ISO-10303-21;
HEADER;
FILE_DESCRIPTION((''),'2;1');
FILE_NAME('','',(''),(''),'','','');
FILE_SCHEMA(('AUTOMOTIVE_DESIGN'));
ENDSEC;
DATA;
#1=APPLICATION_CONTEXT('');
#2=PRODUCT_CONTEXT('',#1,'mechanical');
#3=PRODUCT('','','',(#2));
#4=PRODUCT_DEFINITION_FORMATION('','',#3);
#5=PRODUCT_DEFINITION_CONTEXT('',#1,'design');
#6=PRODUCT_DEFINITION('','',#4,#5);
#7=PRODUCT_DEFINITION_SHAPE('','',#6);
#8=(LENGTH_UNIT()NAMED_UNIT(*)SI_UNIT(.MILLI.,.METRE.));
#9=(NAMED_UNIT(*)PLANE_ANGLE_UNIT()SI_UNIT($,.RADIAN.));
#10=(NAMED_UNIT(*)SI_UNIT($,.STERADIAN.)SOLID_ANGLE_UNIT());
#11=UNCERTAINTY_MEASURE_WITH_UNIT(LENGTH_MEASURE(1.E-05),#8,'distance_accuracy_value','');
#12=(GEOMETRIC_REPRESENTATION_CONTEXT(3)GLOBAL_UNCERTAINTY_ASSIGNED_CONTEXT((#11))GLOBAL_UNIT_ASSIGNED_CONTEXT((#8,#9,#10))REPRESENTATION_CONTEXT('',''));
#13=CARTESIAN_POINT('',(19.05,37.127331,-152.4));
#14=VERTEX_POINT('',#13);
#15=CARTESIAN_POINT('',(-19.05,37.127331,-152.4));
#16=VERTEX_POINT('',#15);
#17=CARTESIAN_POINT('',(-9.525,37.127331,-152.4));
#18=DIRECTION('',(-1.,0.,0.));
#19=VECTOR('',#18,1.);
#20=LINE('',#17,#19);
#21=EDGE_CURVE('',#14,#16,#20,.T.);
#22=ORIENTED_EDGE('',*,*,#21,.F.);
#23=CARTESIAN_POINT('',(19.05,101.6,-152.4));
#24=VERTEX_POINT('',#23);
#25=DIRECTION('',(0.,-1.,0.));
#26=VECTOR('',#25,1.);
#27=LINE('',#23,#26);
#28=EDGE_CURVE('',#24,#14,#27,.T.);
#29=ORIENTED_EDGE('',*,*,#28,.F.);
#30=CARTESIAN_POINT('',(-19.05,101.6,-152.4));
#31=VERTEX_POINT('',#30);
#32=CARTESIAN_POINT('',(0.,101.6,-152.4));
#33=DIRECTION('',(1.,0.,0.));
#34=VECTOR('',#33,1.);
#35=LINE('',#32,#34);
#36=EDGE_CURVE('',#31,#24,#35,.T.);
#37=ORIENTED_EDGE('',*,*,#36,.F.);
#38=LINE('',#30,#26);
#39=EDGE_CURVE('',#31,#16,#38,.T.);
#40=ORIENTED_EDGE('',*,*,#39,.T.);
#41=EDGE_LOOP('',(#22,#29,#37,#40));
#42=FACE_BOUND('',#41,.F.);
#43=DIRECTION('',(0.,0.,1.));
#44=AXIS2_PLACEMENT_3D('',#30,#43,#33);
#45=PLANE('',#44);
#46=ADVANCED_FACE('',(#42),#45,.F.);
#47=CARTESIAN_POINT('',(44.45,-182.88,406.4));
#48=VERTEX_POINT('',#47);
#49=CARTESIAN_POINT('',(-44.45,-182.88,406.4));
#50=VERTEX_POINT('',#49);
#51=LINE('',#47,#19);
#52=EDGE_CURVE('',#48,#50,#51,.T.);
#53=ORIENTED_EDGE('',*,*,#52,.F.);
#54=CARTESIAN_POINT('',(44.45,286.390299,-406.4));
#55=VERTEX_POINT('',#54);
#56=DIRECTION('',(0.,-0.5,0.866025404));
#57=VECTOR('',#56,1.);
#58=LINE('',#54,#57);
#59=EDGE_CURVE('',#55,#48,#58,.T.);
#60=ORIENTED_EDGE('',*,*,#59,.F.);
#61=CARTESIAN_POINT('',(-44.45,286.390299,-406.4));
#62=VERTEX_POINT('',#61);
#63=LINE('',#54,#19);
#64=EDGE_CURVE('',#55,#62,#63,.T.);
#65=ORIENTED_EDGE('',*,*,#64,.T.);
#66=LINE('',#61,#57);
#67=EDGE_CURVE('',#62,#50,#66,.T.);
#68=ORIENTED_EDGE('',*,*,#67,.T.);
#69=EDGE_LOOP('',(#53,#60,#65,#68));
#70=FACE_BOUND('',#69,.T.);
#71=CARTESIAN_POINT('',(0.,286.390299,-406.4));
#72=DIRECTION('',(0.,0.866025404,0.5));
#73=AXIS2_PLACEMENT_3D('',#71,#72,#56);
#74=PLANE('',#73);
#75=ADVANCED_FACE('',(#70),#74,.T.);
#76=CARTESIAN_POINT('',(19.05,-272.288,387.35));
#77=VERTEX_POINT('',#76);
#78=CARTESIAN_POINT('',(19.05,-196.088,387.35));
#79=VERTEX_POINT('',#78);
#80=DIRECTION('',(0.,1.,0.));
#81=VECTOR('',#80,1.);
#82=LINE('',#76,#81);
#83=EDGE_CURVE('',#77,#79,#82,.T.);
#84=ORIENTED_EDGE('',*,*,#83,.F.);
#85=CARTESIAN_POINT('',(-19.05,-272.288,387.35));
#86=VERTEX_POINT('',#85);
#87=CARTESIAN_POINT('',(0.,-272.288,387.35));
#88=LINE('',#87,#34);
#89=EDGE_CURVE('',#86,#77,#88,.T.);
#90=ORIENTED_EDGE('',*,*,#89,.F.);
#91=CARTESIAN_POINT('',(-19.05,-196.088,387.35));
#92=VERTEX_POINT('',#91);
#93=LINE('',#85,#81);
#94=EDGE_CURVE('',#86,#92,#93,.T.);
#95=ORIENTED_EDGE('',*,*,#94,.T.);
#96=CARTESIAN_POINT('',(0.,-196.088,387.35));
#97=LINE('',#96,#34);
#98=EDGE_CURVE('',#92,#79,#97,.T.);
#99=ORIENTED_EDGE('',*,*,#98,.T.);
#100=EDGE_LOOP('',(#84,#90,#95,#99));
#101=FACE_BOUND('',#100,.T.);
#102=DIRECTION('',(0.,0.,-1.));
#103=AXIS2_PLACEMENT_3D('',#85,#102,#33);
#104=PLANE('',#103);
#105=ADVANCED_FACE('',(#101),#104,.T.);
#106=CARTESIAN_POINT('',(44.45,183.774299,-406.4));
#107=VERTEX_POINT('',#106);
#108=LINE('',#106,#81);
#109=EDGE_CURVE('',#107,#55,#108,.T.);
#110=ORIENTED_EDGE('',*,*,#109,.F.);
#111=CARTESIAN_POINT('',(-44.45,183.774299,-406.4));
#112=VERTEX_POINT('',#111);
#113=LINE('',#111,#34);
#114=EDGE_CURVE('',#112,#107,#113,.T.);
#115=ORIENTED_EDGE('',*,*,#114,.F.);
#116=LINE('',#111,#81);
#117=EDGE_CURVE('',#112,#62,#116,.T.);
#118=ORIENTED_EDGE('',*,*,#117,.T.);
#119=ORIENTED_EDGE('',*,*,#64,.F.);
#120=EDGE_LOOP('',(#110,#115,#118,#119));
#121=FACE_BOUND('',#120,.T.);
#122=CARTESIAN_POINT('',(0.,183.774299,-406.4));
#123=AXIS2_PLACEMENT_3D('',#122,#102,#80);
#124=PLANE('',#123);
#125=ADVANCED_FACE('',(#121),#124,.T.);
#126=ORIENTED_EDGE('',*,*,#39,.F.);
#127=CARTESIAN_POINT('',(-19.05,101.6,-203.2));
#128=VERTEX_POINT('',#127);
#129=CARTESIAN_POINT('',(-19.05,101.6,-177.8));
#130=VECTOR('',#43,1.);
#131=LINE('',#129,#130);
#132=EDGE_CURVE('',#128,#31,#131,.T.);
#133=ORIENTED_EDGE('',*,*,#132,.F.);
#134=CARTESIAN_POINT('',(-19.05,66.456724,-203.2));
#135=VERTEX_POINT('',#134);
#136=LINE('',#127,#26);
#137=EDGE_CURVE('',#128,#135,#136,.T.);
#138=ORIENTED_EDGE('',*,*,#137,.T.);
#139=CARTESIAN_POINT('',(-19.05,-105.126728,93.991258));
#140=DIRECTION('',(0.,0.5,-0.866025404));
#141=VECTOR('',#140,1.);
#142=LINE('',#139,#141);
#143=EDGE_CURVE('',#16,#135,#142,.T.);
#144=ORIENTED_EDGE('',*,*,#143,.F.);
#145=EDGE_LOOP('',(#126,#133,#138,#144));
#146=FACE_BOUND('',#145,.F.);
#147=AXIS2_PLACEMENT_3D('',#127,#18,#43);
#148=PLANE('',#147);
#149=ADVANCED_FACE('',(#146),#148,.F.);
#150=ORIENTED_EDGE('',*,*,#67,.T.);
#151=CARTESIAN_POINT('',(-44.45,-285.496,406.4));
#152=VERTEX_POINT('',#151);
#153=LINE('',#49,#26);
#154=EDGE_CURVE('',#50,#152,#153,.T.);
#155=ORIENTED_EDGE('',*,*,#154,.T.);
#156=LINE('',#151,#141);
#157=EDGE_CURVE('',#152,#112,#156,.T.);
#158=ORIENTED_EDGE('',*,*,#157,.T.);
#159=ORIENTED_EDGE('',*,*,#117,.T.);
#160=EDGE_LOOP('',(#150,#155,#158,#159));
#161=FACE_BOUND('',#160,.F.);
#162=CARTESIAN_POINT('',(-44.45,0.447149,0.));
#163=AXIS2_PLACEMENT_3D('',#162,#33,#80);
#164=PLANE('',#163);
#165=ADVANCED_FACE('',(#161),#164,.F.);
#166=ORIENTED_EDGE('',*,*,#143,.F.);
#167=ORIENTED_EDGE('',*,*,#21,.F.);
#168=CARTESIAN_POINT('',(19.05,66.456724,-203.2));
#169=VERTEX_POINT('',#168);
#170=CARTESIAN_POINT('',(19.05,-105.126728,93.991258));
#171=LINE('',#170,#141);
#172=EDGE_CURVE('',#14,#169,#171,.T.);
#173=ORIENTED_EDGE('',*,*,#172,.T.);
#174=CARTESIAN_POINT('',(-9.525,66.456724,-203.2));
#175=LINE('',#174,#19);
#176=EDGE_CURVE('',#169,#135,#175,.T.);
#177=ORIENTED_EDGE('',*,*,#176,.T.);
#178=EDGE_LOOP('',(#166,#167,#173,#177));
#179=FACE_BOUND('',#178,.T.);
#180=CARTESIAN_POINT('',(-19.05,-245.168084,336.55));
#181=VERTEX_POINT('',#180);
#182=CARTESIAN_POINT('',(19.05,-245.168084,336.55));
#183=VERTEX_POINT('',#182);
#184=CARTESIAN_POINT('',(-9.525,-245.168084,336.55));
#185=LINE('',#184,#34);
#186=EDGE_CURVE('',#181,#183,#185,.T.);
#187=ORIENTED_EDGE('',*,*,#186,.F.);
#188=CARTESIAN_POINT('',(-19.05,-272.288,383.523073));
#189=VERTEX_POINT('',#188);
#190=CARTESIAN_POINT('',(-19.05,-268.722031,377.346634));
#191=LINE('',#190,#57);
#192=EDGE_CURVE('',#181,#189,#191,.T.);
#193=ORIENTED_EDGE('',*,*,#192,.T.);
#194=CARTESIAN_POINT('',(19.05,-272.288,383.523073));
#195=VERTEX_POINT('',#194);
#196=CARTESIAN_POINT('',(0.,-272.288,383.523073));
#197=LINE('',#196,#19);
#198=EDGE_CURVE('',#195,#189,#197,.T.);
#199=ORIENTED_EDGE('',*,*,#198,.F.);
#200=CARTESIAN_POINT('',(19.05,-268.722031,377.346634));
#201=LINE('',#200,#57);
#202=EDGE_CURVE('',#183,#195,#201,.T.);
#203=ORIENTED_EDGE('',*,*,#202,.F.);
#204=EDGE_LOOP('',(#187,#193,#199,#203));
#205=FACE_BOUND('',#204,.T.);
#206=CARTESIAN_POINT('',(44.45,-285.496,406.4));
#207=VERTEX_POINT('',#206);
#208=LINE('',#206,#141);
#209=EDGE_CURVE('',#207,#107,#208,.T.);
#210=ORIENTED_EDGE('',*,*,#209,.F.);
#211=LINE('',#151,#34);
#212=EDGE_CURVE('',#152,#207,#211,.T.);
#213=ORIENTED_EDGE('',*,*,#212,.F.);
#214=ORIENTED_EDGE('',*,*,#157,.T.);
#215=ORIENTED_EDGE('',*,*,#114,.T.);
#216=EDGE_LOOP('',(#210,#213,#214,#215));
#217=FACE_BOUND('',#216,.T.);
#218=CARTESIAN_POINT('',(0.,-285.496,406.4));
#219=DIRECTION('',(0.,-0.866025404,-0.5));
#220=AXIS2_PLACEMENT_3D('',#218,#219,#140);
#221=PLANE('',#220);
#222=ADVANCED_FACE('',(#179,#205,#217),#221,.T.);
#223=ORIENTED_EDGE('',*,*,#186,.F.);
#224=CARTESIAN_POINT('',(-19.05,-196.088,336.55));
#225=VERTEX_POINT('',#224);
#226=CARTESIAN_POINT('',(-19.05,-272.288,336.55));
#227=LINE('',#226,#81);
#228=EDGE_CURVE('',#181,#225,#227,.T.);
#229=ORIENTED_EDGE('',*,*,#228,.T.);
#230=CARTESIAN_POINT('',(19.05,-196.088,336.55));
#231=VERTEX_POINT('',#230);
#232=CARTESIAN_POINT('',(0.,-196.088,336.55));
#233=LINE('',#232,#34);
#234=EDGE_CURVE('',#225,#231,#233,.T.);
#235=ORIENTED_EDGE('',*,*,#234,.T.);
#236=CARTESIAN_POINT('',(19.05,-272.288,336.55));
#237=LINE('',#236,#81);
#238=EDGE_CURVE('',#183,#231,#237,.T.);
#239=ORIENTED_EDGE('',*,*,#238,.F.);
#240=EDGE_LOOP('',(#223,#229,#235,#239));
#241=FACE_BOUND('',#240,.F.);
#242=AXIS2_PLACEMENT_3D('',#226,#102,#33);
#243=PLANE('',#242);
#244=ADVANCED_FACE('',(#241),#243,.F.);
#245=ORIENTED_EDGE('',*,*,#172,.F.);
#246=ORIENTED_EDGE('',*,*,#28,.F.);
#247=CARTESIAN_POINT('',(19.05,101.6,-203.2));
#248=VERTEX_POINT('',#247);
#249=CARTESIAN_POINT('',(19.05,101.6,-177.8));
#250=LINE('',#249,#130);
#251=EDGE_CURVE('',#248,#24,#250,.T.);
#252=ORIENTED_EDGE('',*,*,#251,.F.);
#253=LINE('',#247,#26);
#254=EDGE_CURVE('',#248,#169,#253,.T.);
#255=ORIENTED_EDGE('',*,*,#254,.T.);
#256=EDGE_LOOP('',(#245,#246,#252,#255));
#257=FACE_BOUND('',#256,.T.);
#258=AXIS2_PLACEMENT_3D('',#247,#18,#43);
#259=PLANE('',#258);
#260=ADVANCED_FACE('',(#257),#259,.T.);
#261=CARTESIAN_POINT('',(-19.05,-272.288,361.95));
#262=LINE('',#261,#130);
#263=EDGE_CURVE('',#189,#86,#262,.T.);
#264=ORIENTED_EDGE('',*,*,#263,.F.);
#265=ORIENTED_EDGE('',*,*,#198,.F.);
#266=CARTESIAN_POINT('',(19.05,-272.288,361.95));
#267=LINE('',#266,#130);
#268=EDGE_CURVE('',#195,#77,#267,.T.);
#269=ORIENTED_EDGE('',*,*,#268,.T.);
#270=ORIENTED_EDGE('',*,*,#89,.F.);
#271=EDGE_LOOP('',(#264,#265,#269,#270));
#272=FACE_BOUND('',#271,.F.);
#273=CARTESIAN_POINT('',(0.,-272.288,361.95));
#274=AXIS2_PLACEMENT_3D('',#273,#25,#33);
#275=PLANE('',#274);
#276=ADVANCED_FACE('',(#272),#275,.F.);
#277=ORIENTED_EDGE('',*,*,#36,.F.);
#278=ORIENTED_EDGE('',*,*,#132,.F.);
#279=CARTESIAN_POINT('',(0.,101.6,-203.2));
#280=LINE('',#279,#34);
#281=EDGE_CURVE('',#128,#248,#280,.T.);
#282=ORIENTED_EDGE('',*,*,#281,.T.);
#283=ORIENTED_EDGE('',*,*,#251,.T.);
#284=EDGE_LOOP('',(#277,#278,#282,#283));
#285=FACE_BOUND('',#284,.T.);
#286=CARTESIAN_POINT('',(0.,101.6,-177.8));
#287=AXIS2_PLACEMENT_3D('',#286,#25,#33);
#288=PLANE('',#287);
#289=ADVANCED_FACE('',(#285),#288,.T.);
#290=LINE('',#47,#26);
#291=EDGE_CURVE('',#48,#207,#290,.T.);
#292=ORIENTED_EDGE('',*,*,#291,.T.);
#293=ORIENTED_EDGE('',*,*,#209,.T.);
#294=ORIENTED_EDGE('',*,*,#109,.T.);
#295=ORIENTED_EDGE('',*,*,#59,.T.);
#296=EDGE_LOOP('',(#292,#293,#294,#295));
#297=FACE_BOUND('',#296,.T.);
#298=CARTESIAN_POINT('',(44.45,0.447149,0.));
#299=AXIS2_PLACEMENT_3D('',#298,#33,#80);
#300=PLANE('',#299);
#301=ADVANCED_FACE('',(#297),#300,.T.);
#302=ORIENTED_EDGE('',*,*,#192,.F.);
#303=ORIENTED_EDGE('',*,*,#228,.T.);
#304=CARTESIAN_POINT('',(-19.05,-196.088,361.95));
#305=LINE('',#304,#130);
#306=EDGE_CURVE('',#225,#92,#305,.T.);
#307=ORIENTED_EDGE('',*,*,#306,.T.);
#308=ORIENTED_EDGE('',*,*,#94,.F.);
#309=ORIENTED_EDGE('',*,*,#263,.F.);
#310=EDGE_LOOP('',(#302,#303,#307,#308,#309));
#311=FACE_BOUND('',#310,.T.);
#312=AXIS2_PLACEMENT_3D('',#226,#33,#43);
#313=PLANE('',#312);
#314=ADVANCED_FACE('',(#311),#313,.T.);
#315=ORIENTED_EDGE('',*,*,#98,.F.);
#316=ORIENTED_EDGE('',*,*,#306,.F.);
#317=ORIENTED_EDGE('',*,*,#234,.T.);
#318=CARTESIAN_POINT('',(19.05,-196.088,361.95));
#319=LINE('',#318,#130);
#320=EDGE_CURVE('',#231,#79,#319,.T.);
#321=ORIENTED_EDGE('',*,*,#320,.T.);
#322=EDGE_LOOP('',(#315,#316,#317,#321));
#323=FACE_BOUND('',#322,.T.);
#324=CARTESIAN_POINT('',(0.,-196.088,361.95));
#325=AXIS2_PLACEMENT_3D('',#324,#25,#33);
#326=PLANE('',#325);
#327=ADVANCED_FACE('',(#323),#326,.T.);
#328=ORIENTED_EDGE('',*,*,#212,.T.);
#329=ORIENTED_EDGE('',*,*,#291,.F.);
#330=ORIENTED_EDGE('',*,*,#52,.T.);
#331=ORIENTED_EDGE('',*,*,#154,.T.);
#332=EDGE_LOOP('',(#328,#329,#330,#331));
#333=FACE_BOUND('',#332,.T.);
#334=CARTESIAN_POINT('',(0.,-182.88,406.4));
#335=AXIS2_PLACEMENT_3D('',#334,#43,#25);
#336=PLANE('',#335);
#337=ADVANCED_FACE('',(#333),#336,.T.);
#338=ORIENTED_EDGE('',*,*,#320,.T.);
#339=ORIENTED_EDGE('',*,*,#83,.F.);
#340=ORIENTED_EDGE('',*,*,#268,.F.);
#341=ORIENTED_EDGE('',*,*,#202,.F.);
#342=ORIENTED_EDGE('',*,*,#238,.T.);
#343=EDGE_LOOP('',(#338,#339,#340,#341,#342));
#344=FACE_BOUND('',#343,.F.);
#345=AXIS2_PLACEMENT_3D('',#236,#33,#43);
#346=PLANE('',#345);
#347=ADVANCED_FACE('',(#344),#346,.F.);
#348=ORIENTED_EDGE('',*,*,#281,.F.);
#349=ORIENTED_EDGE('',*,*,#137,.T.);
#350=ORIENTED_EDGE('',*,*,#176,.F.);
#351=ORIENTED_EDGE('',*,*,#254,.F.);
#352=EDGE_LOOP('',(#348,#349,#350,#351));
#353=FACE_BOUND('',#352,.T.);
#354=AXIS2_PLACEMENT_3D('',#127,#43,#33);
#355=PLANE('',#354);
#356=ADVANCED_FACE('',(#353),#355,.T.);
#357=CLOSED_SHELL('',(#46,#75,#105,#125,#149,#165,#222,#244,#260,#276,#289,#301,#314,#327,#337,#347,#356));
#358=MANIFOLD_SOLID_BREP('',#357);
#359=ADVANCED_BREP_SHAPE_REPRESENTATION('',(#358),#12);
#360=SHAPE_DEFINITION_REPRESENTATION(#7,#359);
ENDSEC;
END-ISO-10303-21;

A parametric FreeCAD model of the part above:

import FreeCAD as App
import Part
import Sketcher

V = App.Vector
Q = App.Units.Quantity

doc = App.newDocument("Part")
params = doc.addObject("Spreadsheet::Sheet", "Params")
for row, (alias, value) in enumerate([
    ("sketch1_width", "4.04 in"),
    ("pad1_length", "3.5 in"),
    ("sketch2_height", "2 in"),
    ("sketch2_width", "1.5 in"),
    ("pocket1_length", "3 in"),
    ("sketch3_height", "2 in"),
    ("sketch3_width", "1.5 in"),
    ("pocket2_length", "3 in"),
], start=1):
    params.set(f"A{row}", alias)
    params.set(f"B{row}", "=" + value)
    params.setAlias(f"B{row}", alias)

body = doc.addObject("PartDesign::Body", "Body")

# Sketch on YZ plane
sketch1 = body.newObject("Sketcher::SketchObject", "Sketch")
sketch1.AttachmentSupport = (doc.getObject("YZ_Plane"), [""])
sketch1.MapMode = "FlatFace"
sketch1.addGeometry(Part.LineSegment(V(-183, 406, 0), V(-285, 406, 0)), False)
sketch1.addGeometry(Part.LineSegment(V(-285, 406, 0), V(184, -406, 0)), False)
sketch1.addGeometry(Part.LineSegment(V(184, -406, 0), V(286, -406, 0)), False)
sketch1.addGeometry(Part.LineSegment(V(286, -406, 0), V(-183, 406, 0)), False)
sketch1.addConstraint(Sketcher.Constraint("Coincident", 0, 2, 1, 1))
sketch1.addConstraint(Sketcher.Constraint("Coincident", 1, 2, 2, 1))
sketch1.addConstraint(Sketcher.Constraint("Coincident", 2, 2, 3, 1))
sketch1.addConstraint(Sketcher.Constraint("Coincident", 3, 2, 0, 1))
sketch1.addConstraint(Sketcher.Constraint("Horizontal", 0))
sketch1.addConstraint(Sketcher.Constraint("Horizontal", 2))
sketch1.addConstraint(Sketcher.Constraint("Parallel", 1, 3))
sketch1.addConstraint(Sketcher.Constraint("DistanceY", -1, 1, 0, 2, Q("16 in")))
sketch1.addConstraint(Sketcher.Constraint("DistanceY", 1, 2, -1, 1, Q("16 in")))
sketch1.addConstraint(Sketcher.Constraint("Angle", 1, Q("-60 deg")))
sketch1.addConstraint(Sketcher.Constraint("DistanceX", 0, 2, 0, 1, Q("4.04 in")))
sketch1.addConstraint(Sketcher.Constraint("DistanceX", 3, 2, -1, 1, Q("7.2 in")))
sketch1.setExpression("Constraints[10]", "Params.sketch1_width")
pad1 = body.newObject("PartDesign::Pad", "Pad")
pad1.Profile = sketch1
pad1.setExpression("Length", "Params.pad1_length")
pad1.Midplane = True

# Sketch on XZ plane
sketch2 = body.newObject("Sketcher::SketchObject", "Sketch001")
sketch2.AttachmentSupport = (doc.getObject("XZ_Plane"), [""])
sketch2.MapMode = "FlatFace"
sketch2.AttachmentOffset = App.Placement(V(0, 0, 10.72 * 25.4), App.Rotation())
sketch2.addGeometry(Part.LineSegment(V(-19, 387, 0), V(-19, 337, 0)), False)
sketch2.addGeometry(Part.LineSegment(V(-19, 337, 0), V(19, 337, 0)), False)
sketch2.addGeometry(Part.LineSegment(V(19, 337, 0), V(19, 387, 0)), False)
sketch2.addGeometry(Part.LineSegment(V(19, 387, 0), V(-19, 387, 0)), False)
sketch2.addConstraint(Sketcher.Constraint("Coincident", 0, 2, 1, 1))
sketch2.addConstraint(Sketcher.Constraint("Coincident", 1, 2, 2, 1))
sketch2.addConstraint(Sketcher.Constraint("Coincident", 2, 2, 3, 1))
sketch2.addConstraint(Sketcher.Constraint("Coincident", 3, 2, 0, 1))
sketch2.addConstraint(Sketcher.Constraint("Vertical", 0))
sketch2.addConstraint(Sketcher.Constraint("Horizontal", 1))
sketch2.addConstraint(Sketcher.Constraint("Vertical", 2))
sketch2.addConstraint(Sketcher.Constraint("Horizontal", 3))
sketch2.addConstraint(Sketcher.Constraint("DistanceY", 0, 2, 0, 1, Q("2 in")))
sketch2.addConstraint(Sketcher.Constraint("DistanceX", 1, 1, 1, 2, Q("1.5 in")))
sketch2.addConstraint(Sketcher.Constraint("DistanceX", 0, 2, -1, 1, Q("0.75 in")))
sketch2.addConstraint(Sketcher.Constraint("DistanceY", -1, 1, 0, 2, Q("13.25 in")))
sketch2.setExpression("Constraints[8]", "Params.sketch2_height")
sketch2.setExpression("Constraints[9]", "Params.sketch2_width")
pocket1 = body.newObject("PartDesign::Pocket", "Pocket")
pocket1.Profile = sketch2
pocket1.setExpression("Length", "Params.pocket1_length")

# Sketch on XZ plane
sketch3 = body.newObject("Sketcher::SketchObject", "Sketch002")
sketch3.AttachmentSupport = (doc.getObject("XZ_Plane"), [""])
sketch3.MapMode = "FlatFace"
sketch3.AttachmentOffset = App.Placement(V(0, 0, -4 * 25.4), App.Rotation())
sketch3.addGeometry(Part.LineSegment(V(-19, -152, 0), V(-19, -203, 0)), False)
sketch3.addGeometry(Part.LineSegment(V(-19, -203, 0), V(19, -203, 0)), False)
sketch3.addGeometry(Part.LineSegment(V(19, -203, 0), V(19, -152, 0)), False)
sketch3.addGeometry(Part.LineSegment(V(19, -152, 0), V(-19, -152, 0)), False)
sketch3.addConstraint(Sketcher.Constraint("Coincident", 0, 2, 1, 1))
sketch3.addConstraint(Sketcher.Constraint("Coincident", 1, 2, 2, 1))
sketch3.addConstraint(Sketcher.Constraint("Coincident", 2, 2, 3, 1))
sketch3.addConstraint(Sketcher.Constraint("Coincident", 3, 2, 0, 1))
sketch3.addConstraint(Sketcher.Constraint("Vertical", 0))
sketch3.addConstraint(Sketcher.Constraint("Horizontal", 1))
sketch3.addConstraint(Sketcher.Constraint("Vertical", 2))
sketch3.addConstraint(Sketcher.Constraint("Horizontal", 3))
sketch3.addConstraint(Sketcher.Constraint("DistanceY", 0, 2, 0, 1, Q("2 in")))
sketch3.addConstraint(Sketcher.Constraint("DistanceX", 1, 1, 1, 2, Q("1.5 in")))
sketch3.addConstraint(Sketcher.Constraint("DistanceY", 0, 2, -1, 1, Q("8 in")))
sketch3.addConstraint(Sketcher.Constraint("DistanceX", 0, 2, -1, 1, Q("0.75 in")))
sketch3.setExpression("Constraints[8]", "Params.sketch3_height")
sketch3.setExpression("Constraints[9]", "Params.sketch3_width")
pocket2 = body.newObject("PartDesign::Pocket", "Pocket001")
pocket2.Profile = sketch3
pocket2.setExpression("Length", "Params.pocket2_length")
pocket2.Reversed = True

doc.recompute()
